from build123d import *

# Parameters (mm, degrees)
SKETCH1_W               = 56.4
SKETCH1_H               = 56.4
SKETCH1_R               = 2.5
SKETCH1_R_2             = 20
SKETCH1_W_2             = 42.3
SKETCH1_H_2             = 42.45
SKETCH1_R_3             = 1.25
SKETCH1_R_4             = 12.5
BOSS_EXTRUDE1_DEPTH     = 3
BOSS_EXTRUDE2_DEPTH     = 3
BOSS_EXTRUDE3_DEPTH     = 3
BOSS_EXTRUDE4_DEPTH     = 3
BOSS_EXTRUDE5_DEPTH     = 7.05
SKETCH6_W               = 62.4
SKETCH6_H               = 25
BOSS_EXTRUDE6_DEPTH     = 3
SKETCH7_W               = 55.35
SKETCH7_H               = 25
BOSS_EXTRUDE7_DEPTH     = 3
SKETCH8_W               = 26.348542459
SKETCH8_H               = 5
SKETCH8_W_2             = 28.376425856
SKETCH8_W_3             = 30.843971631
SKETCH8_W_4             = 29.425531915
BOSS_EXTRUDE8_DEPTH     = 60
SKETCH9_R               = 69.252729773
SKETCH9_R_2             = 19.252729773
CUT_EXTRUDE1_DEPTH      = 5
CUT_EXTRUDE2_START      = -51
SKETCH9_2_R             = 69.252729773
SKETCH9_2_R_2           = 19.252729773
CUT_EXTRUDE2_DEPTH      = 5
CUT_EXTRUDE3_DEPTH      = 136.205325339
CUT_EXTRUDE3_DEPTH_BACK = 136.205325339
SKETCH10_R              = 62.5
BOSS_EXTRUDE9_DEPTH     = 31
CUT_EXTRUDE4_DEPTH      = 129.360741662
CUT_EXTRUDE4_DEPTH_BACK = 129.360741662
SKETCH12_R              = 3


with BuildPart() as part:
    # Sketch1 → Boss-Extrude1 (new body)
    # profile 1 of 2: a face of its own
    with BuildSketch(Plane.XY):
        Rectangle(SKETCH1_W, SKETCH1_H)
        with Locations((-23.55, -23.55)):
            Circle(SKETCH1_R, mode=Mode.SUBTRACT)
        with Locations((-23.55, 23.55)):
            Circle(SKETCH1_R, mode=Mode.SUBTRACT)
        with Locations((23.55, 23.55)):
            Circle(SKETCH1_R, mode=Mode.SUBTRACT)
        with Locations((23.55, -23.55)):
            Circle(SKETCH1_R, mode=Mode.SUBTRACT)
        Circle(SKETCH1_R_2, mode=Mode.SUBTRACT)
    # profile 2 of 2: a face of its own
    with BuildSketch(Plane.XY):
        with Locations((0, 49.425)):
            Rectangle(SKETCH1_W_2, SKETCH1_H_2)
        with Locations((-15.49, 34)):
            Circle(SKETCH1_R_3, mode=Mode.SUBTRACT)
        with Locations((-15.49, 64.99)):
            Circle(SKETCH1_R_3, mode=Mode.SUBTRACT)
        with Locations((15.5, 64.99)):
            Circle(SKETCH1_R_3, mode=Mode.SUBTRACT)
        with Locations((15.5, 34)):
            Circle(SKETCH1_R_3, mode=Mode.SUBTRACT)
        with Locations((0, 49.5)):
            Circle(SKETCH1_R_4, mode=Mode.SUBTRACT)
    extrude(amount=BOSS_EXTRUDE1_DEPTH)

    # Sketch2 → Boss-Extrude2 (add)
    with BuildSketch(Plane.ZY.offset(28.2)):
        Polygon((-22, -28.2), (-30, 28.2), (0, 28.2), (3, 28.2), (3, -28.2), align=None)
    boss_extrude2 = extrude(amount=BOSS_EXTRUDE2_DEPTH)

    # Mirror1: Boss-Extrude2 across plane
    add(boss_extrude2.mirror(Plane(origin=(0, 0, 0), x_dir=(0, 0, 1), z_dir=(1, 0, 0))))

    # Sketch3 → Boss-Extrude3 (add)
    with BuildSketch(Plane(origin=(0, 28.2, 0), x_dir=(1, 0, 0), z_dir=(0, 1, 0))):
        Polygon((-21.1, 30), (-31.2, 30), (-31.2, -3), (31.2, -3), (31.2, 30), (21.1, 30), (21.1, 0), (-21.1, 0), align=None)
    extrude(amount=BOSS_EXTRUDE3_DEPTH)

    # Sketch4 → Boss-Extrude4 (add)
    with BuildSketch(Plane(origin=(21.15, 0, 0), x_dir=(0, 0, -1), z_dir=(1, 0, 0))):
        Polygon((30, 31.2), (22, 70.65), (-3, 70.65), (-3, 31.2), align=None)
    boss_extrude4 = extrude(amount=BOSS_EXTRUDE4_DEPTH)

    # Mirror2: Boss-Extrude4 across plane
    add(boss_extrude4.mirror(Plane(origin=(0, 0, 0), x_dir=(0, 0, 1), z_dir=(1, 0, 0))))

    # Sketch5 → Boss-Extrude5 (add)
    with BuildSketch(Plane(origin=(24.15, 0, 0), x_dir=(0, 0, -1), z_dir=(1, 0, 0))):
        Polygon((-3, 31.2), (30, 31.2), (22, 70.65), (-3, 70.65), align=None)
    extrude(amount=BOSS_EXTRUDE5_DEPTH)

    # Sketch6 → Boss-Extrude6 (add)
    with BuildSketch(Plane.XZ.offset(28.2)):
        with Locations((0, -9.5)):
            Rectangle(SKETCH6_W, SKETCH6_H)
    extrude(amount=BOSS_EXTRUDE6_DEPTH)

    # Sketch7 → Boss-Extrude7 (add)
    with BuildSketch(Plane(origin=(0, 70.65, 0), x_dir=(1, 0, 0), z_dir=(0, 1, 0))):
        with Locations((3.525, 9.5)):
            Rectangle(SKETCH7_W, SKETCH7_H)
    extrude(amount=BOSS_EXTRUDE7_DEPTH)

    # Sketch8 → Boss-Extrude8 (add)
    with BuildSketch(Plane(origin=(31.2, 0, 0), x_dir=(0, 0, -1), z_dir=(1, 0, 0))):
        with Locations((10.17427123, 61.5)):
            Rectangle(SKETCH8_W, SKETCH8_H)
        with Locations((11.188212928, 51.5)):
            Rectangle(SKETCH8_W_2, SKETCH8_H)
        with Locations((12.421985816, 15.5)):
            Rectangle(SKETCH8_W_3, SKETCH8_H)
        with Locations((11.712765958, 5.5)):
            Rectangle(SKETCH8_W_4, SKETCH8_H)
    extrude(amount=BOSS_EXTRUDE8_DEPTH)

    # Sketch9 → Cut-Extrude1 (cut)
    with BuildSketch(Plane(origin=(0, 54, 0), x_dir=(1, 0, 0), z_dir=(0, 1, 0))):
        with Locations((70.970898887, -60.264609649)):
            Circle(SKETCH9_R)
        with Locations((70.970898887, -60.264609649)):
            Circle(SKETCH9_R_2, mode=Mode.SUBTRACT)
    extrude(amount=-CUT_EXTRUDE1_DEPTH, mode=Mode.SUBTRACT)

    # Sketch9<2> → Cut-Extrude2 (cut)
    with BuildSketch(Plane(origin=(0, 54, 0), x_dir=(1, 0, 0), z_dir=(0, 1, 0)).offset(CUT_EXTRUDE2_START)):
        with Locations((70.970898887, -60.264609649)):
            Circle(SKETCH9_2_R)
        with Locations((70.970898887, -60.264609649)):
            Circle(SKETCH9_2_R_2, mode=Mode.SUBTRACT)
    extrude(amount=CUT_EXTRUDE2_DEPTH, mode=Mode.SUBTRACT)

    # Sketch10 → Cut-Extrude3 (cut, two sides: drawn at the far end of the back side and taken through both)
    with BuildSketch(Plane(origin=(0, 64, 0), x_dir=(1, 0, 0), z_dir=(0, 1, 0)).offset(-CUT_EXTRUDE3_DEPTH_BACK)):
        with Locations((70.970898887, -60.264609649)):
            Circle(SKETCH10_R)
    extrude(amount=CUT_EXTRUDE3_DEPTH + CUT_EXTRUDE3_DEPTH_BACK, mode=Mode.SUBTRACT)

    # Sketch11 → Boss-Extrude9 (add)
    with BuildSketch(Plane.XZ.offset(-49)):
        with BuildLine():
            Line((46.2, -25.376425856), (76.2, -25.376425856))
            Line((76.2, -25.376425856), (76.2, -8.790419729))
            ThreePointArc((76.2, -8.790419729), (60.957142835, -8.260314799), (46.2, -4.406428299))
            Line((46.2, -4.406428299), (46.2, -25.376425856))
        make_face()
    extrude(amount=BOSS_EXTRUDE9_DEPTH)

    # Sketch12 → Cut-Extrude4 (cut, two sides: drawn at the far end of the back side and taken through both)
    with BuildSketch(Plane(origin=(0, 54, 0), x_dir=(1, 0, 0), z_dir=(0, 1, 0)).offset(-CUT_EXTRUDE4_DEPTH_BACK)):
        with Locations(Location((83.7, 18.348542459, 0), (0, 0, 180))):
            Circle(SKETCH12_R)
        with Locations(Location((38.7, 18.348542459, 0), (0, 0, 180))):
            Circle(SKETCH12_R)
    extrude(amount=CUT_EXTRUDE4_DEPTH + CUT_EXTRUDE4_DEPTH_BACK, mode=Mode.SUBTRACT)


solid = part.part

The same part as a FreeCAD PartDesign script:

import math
import FreeCAD as App
import Part
import Sketcher

V = App.Vector


def add_polygon(sketch, points):
    """Adds a closed chain of lines whose ends are joined by coincident constraints."""
    first, n = sketch.GeometryCount, len(points)
    for a, b in zip(points, points[1:] + points[:1]):
        sketch.addGeometry(Part.LineSegment(App.Vector(*a, 0), App.Vector(*b, 0)), False)
    for i in range(n):
        sketch.addConstraint(Sketcher.Constraint("Coincident", first + i, 2, first + (i + 1) % n, 1))

doc = App.newDocument("Part")
body = doc.addObject("PartDesign::Body", "Body")

# Sketch on XY plane
sketch1 = body.newObject("Sketcher::SketchObject", "Sketch")
sketch1.AttachmentSupport = (doc.getObject("XY_Plane"), [""])
sketch1.MapMode = "FlatFace"
add_polygon(sketch1, [(-28.2, 28.2), (-28.2, -28.2), (28.2, -28.2), (28.2, 28.2), (21.1, 28.2), (21.1, 70.7), (-21.1, 70.7), (-21.1, 28.2)])  # lines 0-7
sketch1.addGeometry(Part.Circle(V(-23.6, -23.6, 0), V(0, 0, 1), 2.5), False)  # 8
sketch1.addGeometry(Part.Circle(V(23.6, -23.6, 0), V(0, 0, 1), 2.5), False)  # 9
sketch1.addGeometry(Part.Circle(V(-23.6, 23.6, 0), V(0, 0, 1), 2.5), False)  # 10
sketch1.addGeometry(Part.Circle(V(0, 0, 0), V(0, 0, 1), 20), False)  # 11
sketch1.addGeometry(Part.Circle(V(23.6, 23.6, 0), V(0, 0, 1), 2.5), False)  # 12
sketch1.addGeometry(Part.Circle(V(15.5, 65, 0), V(0, 0, 1), 1.2), False)  # 13
sketch1.addGeometry(Part.Circle(V(-15.5, 34, 0), V(0, 0, 1), 1.2), False)  # 14
sketch1.addGeometry(Part.Circle(V(15.5, 34, 0), V(0, 0, 1), 1.2), False)  # 15
sketch1.addGeometry(Part.Circle(V(0, 49.5, 0), V(0, 0, 1), 12.5), False)  # 16
sketch1.addGeometry(Part.Circle(V(-15.5, 65, 0), V(0, 0, 1), 1.2), False)  # 17
sketch1.addConstraint(Sketcher.Constraint("Vertical", 0))
sketch1.addConstraint(Sketcher.Constraint("Horizontal", 1))
sketch1.addConstraint(Sketcher.Constraint("Vertical", 2))
sketch1.addConstraint(Sketcher.Constraint("Horizontal", 3))
sketch1.addConstraint(Sketcher.Constraint("Vertical", 4))
sketch1.addConstraint(Sketcher.Constraint("Horizontal", 5))
sketch1.addConstraint(Sketcher.Constraint("Vertical", 6))
sketch1.addConstraint(Sketcher.Constraint("Horizontal", 7))
sketch1.addConstraint(Sketcher.Constraint("Coincident", 11, 3, -1, 1))
sketch1.addConstraint(Sketcher.Constraint("Equal", 8, 9))
sketch1.addConstraint(Sketcher.Constraint("Equal", 9, 10))
sketch1.addConstraint(Sketcher.Constraint("Equal", 10, 12))
sketch1.addConstraint(Sketcher.Constraint("Equal", 13, 14))
sketch1.addConstraint(Sketcher.Constraint("Equal", 14, 15))
sketch1.addConstraint(Sketcher.Constraint("Equal", 15, 17))
sketch1.addConstraint(Sketcher.Constraint("Symmetric", 9, 3, 10, 3, -1, 1))
sketch1.addConstraint(Sketcher.Constraint("Symmetric", 8, 3, 12, 3, -1, 1))
sketch1.addConstraint(Sketcher.Constraint("Symmetric", 0, 2, 2, 2, -1, 1))
sketch1.addConstraint(Sketcher.Constraint("Symmetric", 8, 3, 9, 3, -2))
sketch1.addConstraint(Sketcher.Constraint("Symmetric", 3, 2, 6, 2, -2))
sketch1.addConstraint(Sketcher.Constraint("PointOnObject", 16, 3, -2))
sketch1.addConstraint(Sketcher.Constraint("Horizontal", 14, 3, 15, 3))
sketch1.addConstraint(Sketcher.Constraint("Horizontal", 13, 3, 17, 3))
sketch1.addConstraint(Sketcher.Constraint("Vertical", 13, 3, 15, 3))
sketch1.addConstraint(Sketcher.Constraint("Vertical", 14, 3, 17, 3))
sketch1.addConstraint(Sketcher.Constraint("Equal", 1, 0))
sketch1.addConstraint(Sketcher.Constraint("Diameter", 8, 5.0))
sketch1.addConstraint(Sketcher.Constraint("Diameter", 11, 40.0))
sketch1.addConstraint(Sketcher.Constraint("Diameter", 16, 25.0))
sketch1.addConstraint(Sketcher.Constraint("Diameter", 13, 2.5))
sketch1.addConstraint(Sketcher.Constraint("DistanceX", 1, 1, 1, 2, 56.4))
sketch1.addConstraint(Sketcher.Constraint("DistanceX", 5, 2, 5, 1, 42.3))
sketch1.addConstraint(Sketcher.Constraint("DistanceY", -1, 1, 14, 3, 34.0))
sketch1.addConstraint(Sketcher.Constraint("DistanceY", 4, 1, 4, 2, 42.45))
sketch1.addConstraint(Sketcher.Constraint("DistanceX", -1, 1, 13, 3, 15.5))
sketch1.addConstraint(Sketcher.Constraint("DistanceY", -1, 1, 16, 3, 49.5))
sketch1.addConstraint(Sketcher.Constraint("DistanceX", 8, 3, 9, 3, 47.1))
sketch1.addConstraint(Sketcher.Constraint("DistanceY", 8, 3, 10, 3, 47.1))
sketch1.addConstraint(Sketcher.Constraint("DistanceY", -1, 1, 13, 3, 64.99))
sketch1.addConstraint(Sketcher.Constraint("DistanceX", 14, 3, -1, 1, 15.49))
pad1 = body.newObject("PartDesign::Pad", "Pad")
pad1.Profile = sketch1
pad1.Length = 3

# Sketch on YZ plane
sketch2 = body.newObject("Sketcher::SketchObject", "Sketch001")
sketch2.AttachmentSupport = (doc.getObject("YZ_Plane"), [""])
sketch2.MapMode = "FlatFace"
sketch2.AttachmentOffset = App.Placement(V(0, 0, -28.2), App.Rotation())
add_polygon(sketch2, [(28, -30), (-28, -22), (-28, 3), (28, 3)])  # lines 0-3
sketch2.addConstraint(Sketcher.Constraint("Vertical", 1))
sketch2.addConstraint(Sketcher.Constraint("Horizontal", 2))
sketch2.addConstraint(Sketcher.Constraint("Vertical", 3))
sketch2.addConstraint(Sketcher.Constraint("DistanceY", 1, 1, 1, 2, 25.0))
sketch2.addConstraint(Sketcher.Constraint("DistanceY", 3, 2, 3, 1, 33.0))
sketch2.addConstraint(Sketcher.Constraint("DistanceX", 2, 1, 2, 2, 56.4))
sketch2.addConstraint(Sketcher.Constraint("DistanceY", 0, 2, -1, 1, 22.0))
sketch2.addConstraint(Sketcher.Constraint("DistanceX", 0, 2, -1, 1, 28.2))
pad2 = body.newObject("PartDesign::Pad", "Pad001")
pad2.Profile = sketch2
pad2.Length = 3
pad2.Reversed = True
doc.recompute()

mirrored = body.newObject("PartDesign::Mirrored", "Mirrored")
mirrored.Originals = [pad2]
mirrored.MirrorPlane = (doc.getObject("YZ_Plane"), [""])
body.Tip = mirrored

# Sketch on XZ plane
sketch3 = body.newObject("Sketcher::SketchObject", "Sketch002")
sketch3.AttachmentSupport = (doc.getObject("XZ_Plane"), [""])
sketch3.MapMode = "FlatFace"
sketch3.AttachmentOffset = App.Placement(V(0, 0, -28.2), App.Rotation())
add_polygon(sketch3, [(-21, -30), (-31, -30), (-31, 3), (31, 3), (31, -30), (21, -30), (21, 0), (-21, 0)])  # lines 0-7
sketch3.addConstraint(Sketcher.Constraint("Horizontal", 0))
sketch3.addConstraint(Sketcher.Constraint("Vertical", 1))
sketch3.addConstraint(Sketcher.Constraint("Horizontal", 2))
sketch3.addConstraint(Sketcher.Constraint("Vertical", 3))
sketch3.addConstraint(Sketcher.Constraint("Horizontal", 4))
sketch3.addConstraint(Sketcher.Constraint("Vertical", 5))
sketch3.addConstraint(Sketcher.Constraint("Horizontal", 6))
sketch3.addConstraint(Sketcher.Constraint("Vertical", 7))
sketch3.addConstraint(Sketcher.Constraint("Symmetric", 5, 2, 6, 2, -1, 1))
sketch3.addConstraint(Sketcher.Constraint("Symmetric", 0, 2, 3, 2, -2))
sketch3.addConstraint(Sketcher.Constraint("DistanceY", 1, 1, 1, 2, 33.0))
sketch3.addConstraint(Sketcher.Constraint("DistanceY", 5, 1, 5, 2, 30.0))
sketch3.addConstraint(Sketcher.Constraint("DistanceX", 0, 2, 0, 1, 10.1))
sketch3.addConstraint(Sketcher.Constraint("DistanceX", 2, 1, 2, 2, 62.4))
pad3 = body.newObject("PartDesign::Pad", "Pad002")
pad3.Profile = sketch3
pad3.Length = 3
pad3.Reversed = True

# Sketch on YZ plane
sketch4 = body.newObject("Sketcher::SketchObject", "Sketch003")
sketch4.AttachmentSupport = (doc.getObject("YZ_Plane"), [""])
sketch4.MapMode = "FlatFace"
sketch4.AttachmentOffset = App.Placement(V(0, 0, 21.15), App.Rotation())
add_polygon(sketch4, [(31, -30), (71, -22), (71, 3), (31, 3)])  # lines 0-3
sketch4.addConstraint(Sketcher.Constraint("Vertical", 1))
sketch4.addConstraint(Sketcher.Constraint("Horizontal", 2))
sketch4.addConstraint(Sketcher.Constraint("Vertical", 3))
sketch4.addConstraint(Sketcher.Constraint("DistanceY", 1, 1, 1, 2, 25.0))
sketch4.addConstraint(Sketcher.Constraint("DistanceY", 3, 2, 3, 1, 33.0))
sketch4.addConstraint(Sketcher.Constraint("DistanceY", 0, 2, -1, 1, 22.0))
sketch4.addConstraint(Sketcher.Constraint("DistanceX", 2, 2, 2, 1, 39.45))
sketch4.addConstraint(Sketcher.Constraint("DistanceX", -1, 1, 2, 2, 31.2))
pad4 = body.newObject("PartDesign::Pad", "Pad003")
pad4.Profile = sketch4
pad4.Length = 3
doc.recompute()

mirrored2 = body.newObject("PartDesign::Mirrored", "Mirrored001")
mirrored2.Originals = [pad4]
mirrored2.MirrorPlane = (doc.getObject("YZ_Plane"), [""])
body.Tip = mirrored2

# Sketch on YZ plane
sketch5 = body.newObject("Sketcher::SketchObject", "Sketch004")
sketch5.AttachmentSupport = (doc.getObject("YZ_Plane"), [""])
sketch5.MapMode = "FlatFace"
sketch5.AttachmentOffset = App.Placement(V(0, 0, 24.15), App.Rotation())
add_polygon(sketch5, [(31, 3), (31, -30), (71, -22), (71, 3)])  # lines 0-3
sketch5.addConstraint(Sketcher.Constraint("Vertical", 0))
sketch5.addConstraint(Sketcher.Constraint("Vertical", 2))
sketch5.addConstraint(Sketcher.Constraint("Horizontal", 3))
sketch5.addConstraint(Sketcher.Constraint("DistanceY", 0, 2, 0, 1, 33.0))
sketch5.addConstraint(Sketcher.Constraint("DistanceY", 2, 1, 2, 2, 25.0))
sketch5.addConstraint(Sketcher.Constraint("DistanceY", 0, 2, -1, 1, 30.0))
sketch5.addConstraint(Sketcher.Constraint("DistanceX", 3, 2, 3, 1, 39.45))
sketch5.addConstraint(Sketcher.Constraint("DistanceX", -1, 1, 0, 2, 31.2))
pad5 = body.newObject("PartDesign::Pad", "Pad004")
pad5.Profile = sketch5
pad5.Length = 7.05

# Sketch on XZ plane
sketch6 = body.newObject("Sketcher::SketchObject", "Sketch005")
sketch6.AttachmentSupport = (doc.getObject("XZ_Plane"), [""])
sketch6.MapMode = "FlatFace"
sketch6.AttachmentOffset = App.Placement(V(0, 0, 28.2), App.Rotation())
add_polygon(sketch6, [(-31, 3), (-31, -22), (31, -22), (31, 3)])  # lines 0-3
sketch6.addConstraint(Sketcher.Constraint("Vertical", 0))
sketch6.addConstraint(Sketcher.Constraint("Horizontal", 1))
sketch6.addConstraint(Sketcher.Constraint("Vertical", 2))
sketch6.addConstraint(Sketcher.Constraint("Horizontal", 3))
sketch6.addConstraint(Sketcher.Constraint("DistanceY", 0, 2, 0, 1, 25.0))
sketch6.addConstraint(Sketcher.Constraint("DistanceX", 1, 1, 1, 2, 62.4))
sketch6.addConstraint(Sketcher.Constraint("DistanceY", 0, 2, -1, 1, 22.0))
sketch6.addConstraint(Sketcher.Constraint("DistanceX", 0, 2, -1, 1, 31.2))
pad6 = body.newObject("PartDesign::Pad", "Pad005")
pad6.Profile = sketch6
pad6.Length = 3

# Sketch on XZ plane
sketch7 = body.newObject("Sketcher::SketchObject", "Sketch006")
sketch7.AttachmentSupport = (doc.getObject("XZ_Plane"), [""])
sketch7.MapMode = "FlatFace"
sketch7.AttachmentOffset = App.Placement(V(0, 0, -70.65), App.Rotation())
add_polygon(sketch7, [(-24, -22), (-24, 3), (31, 3), (31, -22)])  # lines 0-3
sketch7.addConstraint(Sketcher.Constraint("Vertical", 0))
sketch7.addConstraint(Sketcher.Constraint("Horizontal", 1))
sketch7.addConstraint(Sketcher.Constraint("Vertical", 2))
sketch7.addConstraint(Sketcher.Constraint("Horizontal", 3))
sketch7.addConstraint(Sketcher.Constraint("DistanceY", 0, 1, 0, 2, 25.0))
sketch7.addConstraint(Sketcher.Constraint("DistanceY", -1, 1, 0, 2, 3.0))
sketch7.addConstraint(Sketcher.Constraint("DistanceX", 1, 1, 1, 2, 55.35))
sketch7.addConstraint(Sketcher.Constraint("DistanceX", -1, 1, 1, 2, 31.2))
pad7 = body.newObject("PartDesign::Pad", "Pad006")
pad7.Profile = sketch7
pad7.Length = 3
pad7.Reversed = True

# Sketch on YZ plane
sketch8 = body.newObject("Sketcher::SketchObject", "Sketch007")
sketch8.AttachmentSupport = (doc.getObject("YZ_Plane"), [""])
sketch8.MapMode = "FlatFace"
sketch8.AttachmentOffset = App.Placement(V(0, 0, 31.2), App.Rotation())
add_polygon(sketch8, [(64, 3), (59, 3), (59, -23), (64, -23)])  # lines 0-3
add_polygon(sketch8, [(54, 3), (49, 3), (49, -25), (54, -25)])  # lines 4-7
add_polygon(sketch8, [(18, 3), (13, 3), (13, -28), (18, -28)])  # lines 8-11
add_polygon(sketch8, [(8, 3), (3, 3), (3, -26), (8, -26)])  # lines 12-15
sketch8.addConstraint(Sketcher.Constraint("Horizontal", 0))
sketch8.addConstraint(Sketcher.Constraint("Vertical", 1))
sketch8.addConstraint(Sketcher.Constraint("Horizontal", 2))
sketch8.addConstraint(Sketcher.Constraint("Vertical", 3))
sketch8.addConstraint(Sketcher.Constraint("Horizontal", 4))
sketch8.addConstraint(Sketcher.Constraint("Vertical", 5))
sketch8.addConstraint(Sketcher.Constraint("Horizontal", 6))
sketch8.addConstraint(Sketcher.Constraint("Vertical", 7))
sketch8.addConstraint(Sketcher.Constraint("Horizontal", 8))
sketch8.addConstraint(Sketcher.Constraint("Vertical", 9))
sketch8.addConstraint(Sketcher.Constraint("Horizontal", 10))
sketch8.addConstraint(Sketcher.Constraint("Vertical", 11))
sketch8.addConstraint(Sketcher.Constraint("Horizontal", 12))
sketch8.addConstraint(Sketcher.Constraint("Vertical", 13))
sketch8.addConstraint(Sketcher.Constraint("Horizontal", 14))
sketch8.addConstraint(Sketcher.Constraint("Vertical", 15))
sketch8.addConstraint(Sketcher.Constraint("Horizontal", 3, 2, 4, 2))
sketch8.addConstraint(Sketcher.Constraint("Horizontal", 7, 2, 8, 2))
sketch8.addConstraint(Sketcher.Constraint("Horizontal", 11, 2, 12, 2))
sketch8.addConstraint(Sketcher.Constraint("Equal", 2, 4))
sketch8.addConstraint(Sketcher.Constraint("Equal", 6, 8))
sketch8.addConstraint(Sketcher.Constraint("Equal", 10, 12))
sketch8.addConstraint(Sketcher.Constraint("DistanceX", 0, 2, 0, 1, 5.0))
sketch8.addConstraint(Sketcher.Constraint("DistanceX", -1, 1, 0, 2, 59.0))
sketch8.addConstraint(Sketcher.Constraint("DistanceY", -1, 1, 0, 2, 3.0))
sketch8.addConstraint(Sketcher.Constraint("DistanceX", -1, 1, 4, 2, 49.0))
sketch8.addConstraint(Sketcher.Constraint("DistanceX", -1, 1, 8, 2, 13.0))
sketch8.addConstraint(Sketcher.Constraint("DistanceX", -1, 1, 12, 2, 3.0))
sketch8.addConstraint(Sketcher.Constraint("DistanceY", 9, 2, 9, 1, 30.843972))
sketch8.addConstraint(Sketcher.Constraint("DistanceY", 13, 2, 13, 1, 29.425532))
sketch8.addConstraint(Sketcher.Constraint("DistanceY", 1, 2, 1, 1, 26.348542))
sketch8.addConstraint(Sketcher.Constraint("DistanceY", 5, 2, 5, 1, 28.376426))
pad8 = body.newObject("PartDesign::Pad", "Pad007")
pad8.Profile = sketch8
pad8.Length = 60

# Sketch on XZ plane
sketch9 = body.newObject("Sketcher::SketchObject", "Sketch008")
sketch9.AttachmentSupport = (doc.getObject("XZ_Plane"), [""])
sketch9.MapMode = "FlatFace"
sketch9.AttachmentOffset = App.Placement(V(0, 0, -54), App.Rotation())
sketch9.addGeometry(Part.Circle(V(71, 60, 0), V(0, 0, 1), 69), False)
sketch9.addGeometry(Part.Circle(V(71, 60, 0), V(0, 0, 1), 19), False)
sketch9.addConstraint(Sketcher.Constraint("Coincident", 1, 3, 0, 3))
sketch9.addConstraint(Sketcher.Constraint("Diameter", 0, 138.50546))
sketch9.addConstraint(Sketcher.Constraint("Diameter", 1, 38.50546))
sketch9.addConstraint(Sketcher.Constraint("DistanceX", -1, 1, 0, 3, 70.970899))
sketch9.addConstraint(Sketcher.Constraint("DistanceY", -1, 1, 0, 3, 60.26461))
pocket1 = body.newObject("PartDesign::Pocket", "Pocket")
pocket1.Profile = sketch9
pocket1.Length = 5
pocket1.Reversed = True

# Sketch on XZ plane
sketch10 = body.newObject("Sketcher::SketchObject", "Sketch009")
sketch10.AttachmentSupport = (doc.getObject("XZ_Plane"), [""])
sketch10.MapMode = "FlatFace"
sketch10.AttachmentOffset = App.Placement(V(0, 0, -3), App.Rotation())
sketch10.addGeometry(Part.Circle(V(71, 60, 0), V(0, 0, 1), 69), False)
sketch10.addGeometry(Part.Circle(V(71, 60, 0), V(0, 0, 1), 19), False)
sketch10.addConstraint(Sketcher.Constraint("Coincident", 1, 3, 0, 3))
sketch10.addConstraint(Sketcher.Constraint("Diameter", 0, 138.50546))
sketch10.addConstraint(Sketcher.Constraint("Diameter", 1, 38.50546))
sketch10.addConstraint(Sketcher.Constraint("DistanceX", -1, 1, 0, 3, 70.970899))
sketch10.addConstraint(Sketcher.Constraint("DistanceY", -1, 1, 0, 3, 60.26461))
pocket2 = body.newObject("PartDesign::Pocket", "Pocket001")
pocket2.Profile = sketch10
pocket2.Length = 5

# Sketch on XZ plane
sketch11 = body.newObject("Sketcher::SketchObject", "Sketch010")
sketch11.AttachmentSupport = (doc.getObject("XZ_Plane"), [""])
sketch11.MapMode = "FlatFace"
sketch11.AttachmentOffset = App.Placement(V(0, 0, -64), App.Rotation())
sketch11.addGeometry(Part.Circle(V(71, 60, 0), V(0, 0, 1), 62), False)
sketch11.addConstraint(Sketcher.Constraint("Diameter", 0, 125.0))
sketch11.addConstraint(Sketcher.Constraint("DistanceX", -1, 1, 0, 3, 70.970899))
sketch11.addConstraint(Sketcher.Constraint("DistanceY", -1, 1, 0, 3, 60.26461))
pocket3 = body.newObject("PartDesign::Pocket", "Pocket002")
pocket3.Profile = sketch11
pocket3.Type = "ThroughAll"
pocket3.Midplane = True

# Sketch on XZ plane
sketch12 = body.newObject("Sketcher::SketchObject", "Sketch011")
sketch12.AttachmentSupport = (doc.getObject("XZ_Plane"), [""])
sketch12.MapMode = "FlatFace"
sketch12.AttachmentOffset = App.Placement(V(0, 0, -49), App.Rotation())
sketch12.addGeometry(Part.LineSegment(V(46, -25, 0), V(76, -25, 0)), False)
sketch12.addGeometry(Part.LineSegment(V(76, -25, 0), V(76, -9, 0)), False)
sketch12.addGeometry(Part.ArcOfCircle(Part.Circle(V(71, 60, 0), V(0, 0, 1), 69), math.radians(-111), math.radians(-86)), False)
sketch12.addGeometry(Part.LineSegment(V(46, -4, 0), V(46, -25, 0)), False)
sketch12.addConstraint(Sketcher.Constraint("Coincident", 0, 2, 1, 1))
sketch12.addConstraint(Sketcher.Constraint("Coincident", 1, 2, 2, 2))
sketch12.addConstraint(Sketcher.Constraint("Coincident", 2, 1, 3, 1))
sketch12.addConstraint(Sketcher.Constraint("Coincident", 3, 2, 0, 1))
sketch12.addConstraint(Sketcher.Constraint("Horizontal", 0))
sketch12.addConstraint(Sketcher.Constraint("Vertical", 1))
sketch12.addConstraint(Sketcher.Constraint("Vertical", 3))
sketch12.addConstraint(Sketcher.Constraint("DistanceX", 0, 1, 0, 2, 30.0))
sketch12.addConstraint(Sketcher.Constraint("DistanceX", -1, 1, 0, 2, 76.2))
sketch12.addConstraint(Sketcher.Constraint("Radius", 2, 69.25273))
sketch12.addConstraint(Sketcher.Constraint("DistanceX", -1, 1, 2, 3, 70.970899))
sketch12.addConstraint(Sketcher.Constraint("DistanceY", 1, 1, 1, 2, 16.586006))
sketch12.addConstraint(Sketcher.Constraint("DistanceY", -1, 1, 2, 3, 60.26461))
pad9 = body.newObject("PartDesign::Pad", "Pad008")
pad9.Profile = sketch12
pad9.Length = 31

# Sketch on XZ plane
sketch13 = body.newObject("Sketcher::SketchObject", "Sketch012")
sketch13.AttachmentSupport = (doc.getObject("XZ_Plane"), [""])
sketch13.MapMode = "FlatFace"
sketch13.AttachmentOffset = App.Placement(V(0, 0, -54), App.Rotation())
sketch13.addGeometry(Part.Circle(V(83.7, -18.3, 0), V(0, 0, 1), 3), False)
sketch13.addGeometry(Part.Circle(V(38.7, -18.3, 0), V(0, 0, 1), 3), False)
sketch13.addConstraint(Sketcher.Constraint("Equal", 0, 1))
sketch13.addConstraint(Sketcher.Constraint("Horizontal", 0, 3, 1, 3))
sketch13.addConstraint(Sketcher.Constraint("Diameter", 0, 6.0))
sketch13.addConstraint(Sketcher.Constraint("DistanceX", 1, 3, 0, 3, 45.0))
sketch13.addConstraint(Sketcher.Constraint("DistanceX", -1, 1, 0, 3, 83.7))
sketch13.addConstraint(Sketcher.Constraint("DistanceY", 0, 3, -1, 1, 18.348542))
pocket4 = body.newObject("PartDesign::Pocket", "Pocket003")
pocket4.Profile = sketch13
pocket4.Type = "ThroughAll"
pocket4.Midplane = True

doc.recompute()
